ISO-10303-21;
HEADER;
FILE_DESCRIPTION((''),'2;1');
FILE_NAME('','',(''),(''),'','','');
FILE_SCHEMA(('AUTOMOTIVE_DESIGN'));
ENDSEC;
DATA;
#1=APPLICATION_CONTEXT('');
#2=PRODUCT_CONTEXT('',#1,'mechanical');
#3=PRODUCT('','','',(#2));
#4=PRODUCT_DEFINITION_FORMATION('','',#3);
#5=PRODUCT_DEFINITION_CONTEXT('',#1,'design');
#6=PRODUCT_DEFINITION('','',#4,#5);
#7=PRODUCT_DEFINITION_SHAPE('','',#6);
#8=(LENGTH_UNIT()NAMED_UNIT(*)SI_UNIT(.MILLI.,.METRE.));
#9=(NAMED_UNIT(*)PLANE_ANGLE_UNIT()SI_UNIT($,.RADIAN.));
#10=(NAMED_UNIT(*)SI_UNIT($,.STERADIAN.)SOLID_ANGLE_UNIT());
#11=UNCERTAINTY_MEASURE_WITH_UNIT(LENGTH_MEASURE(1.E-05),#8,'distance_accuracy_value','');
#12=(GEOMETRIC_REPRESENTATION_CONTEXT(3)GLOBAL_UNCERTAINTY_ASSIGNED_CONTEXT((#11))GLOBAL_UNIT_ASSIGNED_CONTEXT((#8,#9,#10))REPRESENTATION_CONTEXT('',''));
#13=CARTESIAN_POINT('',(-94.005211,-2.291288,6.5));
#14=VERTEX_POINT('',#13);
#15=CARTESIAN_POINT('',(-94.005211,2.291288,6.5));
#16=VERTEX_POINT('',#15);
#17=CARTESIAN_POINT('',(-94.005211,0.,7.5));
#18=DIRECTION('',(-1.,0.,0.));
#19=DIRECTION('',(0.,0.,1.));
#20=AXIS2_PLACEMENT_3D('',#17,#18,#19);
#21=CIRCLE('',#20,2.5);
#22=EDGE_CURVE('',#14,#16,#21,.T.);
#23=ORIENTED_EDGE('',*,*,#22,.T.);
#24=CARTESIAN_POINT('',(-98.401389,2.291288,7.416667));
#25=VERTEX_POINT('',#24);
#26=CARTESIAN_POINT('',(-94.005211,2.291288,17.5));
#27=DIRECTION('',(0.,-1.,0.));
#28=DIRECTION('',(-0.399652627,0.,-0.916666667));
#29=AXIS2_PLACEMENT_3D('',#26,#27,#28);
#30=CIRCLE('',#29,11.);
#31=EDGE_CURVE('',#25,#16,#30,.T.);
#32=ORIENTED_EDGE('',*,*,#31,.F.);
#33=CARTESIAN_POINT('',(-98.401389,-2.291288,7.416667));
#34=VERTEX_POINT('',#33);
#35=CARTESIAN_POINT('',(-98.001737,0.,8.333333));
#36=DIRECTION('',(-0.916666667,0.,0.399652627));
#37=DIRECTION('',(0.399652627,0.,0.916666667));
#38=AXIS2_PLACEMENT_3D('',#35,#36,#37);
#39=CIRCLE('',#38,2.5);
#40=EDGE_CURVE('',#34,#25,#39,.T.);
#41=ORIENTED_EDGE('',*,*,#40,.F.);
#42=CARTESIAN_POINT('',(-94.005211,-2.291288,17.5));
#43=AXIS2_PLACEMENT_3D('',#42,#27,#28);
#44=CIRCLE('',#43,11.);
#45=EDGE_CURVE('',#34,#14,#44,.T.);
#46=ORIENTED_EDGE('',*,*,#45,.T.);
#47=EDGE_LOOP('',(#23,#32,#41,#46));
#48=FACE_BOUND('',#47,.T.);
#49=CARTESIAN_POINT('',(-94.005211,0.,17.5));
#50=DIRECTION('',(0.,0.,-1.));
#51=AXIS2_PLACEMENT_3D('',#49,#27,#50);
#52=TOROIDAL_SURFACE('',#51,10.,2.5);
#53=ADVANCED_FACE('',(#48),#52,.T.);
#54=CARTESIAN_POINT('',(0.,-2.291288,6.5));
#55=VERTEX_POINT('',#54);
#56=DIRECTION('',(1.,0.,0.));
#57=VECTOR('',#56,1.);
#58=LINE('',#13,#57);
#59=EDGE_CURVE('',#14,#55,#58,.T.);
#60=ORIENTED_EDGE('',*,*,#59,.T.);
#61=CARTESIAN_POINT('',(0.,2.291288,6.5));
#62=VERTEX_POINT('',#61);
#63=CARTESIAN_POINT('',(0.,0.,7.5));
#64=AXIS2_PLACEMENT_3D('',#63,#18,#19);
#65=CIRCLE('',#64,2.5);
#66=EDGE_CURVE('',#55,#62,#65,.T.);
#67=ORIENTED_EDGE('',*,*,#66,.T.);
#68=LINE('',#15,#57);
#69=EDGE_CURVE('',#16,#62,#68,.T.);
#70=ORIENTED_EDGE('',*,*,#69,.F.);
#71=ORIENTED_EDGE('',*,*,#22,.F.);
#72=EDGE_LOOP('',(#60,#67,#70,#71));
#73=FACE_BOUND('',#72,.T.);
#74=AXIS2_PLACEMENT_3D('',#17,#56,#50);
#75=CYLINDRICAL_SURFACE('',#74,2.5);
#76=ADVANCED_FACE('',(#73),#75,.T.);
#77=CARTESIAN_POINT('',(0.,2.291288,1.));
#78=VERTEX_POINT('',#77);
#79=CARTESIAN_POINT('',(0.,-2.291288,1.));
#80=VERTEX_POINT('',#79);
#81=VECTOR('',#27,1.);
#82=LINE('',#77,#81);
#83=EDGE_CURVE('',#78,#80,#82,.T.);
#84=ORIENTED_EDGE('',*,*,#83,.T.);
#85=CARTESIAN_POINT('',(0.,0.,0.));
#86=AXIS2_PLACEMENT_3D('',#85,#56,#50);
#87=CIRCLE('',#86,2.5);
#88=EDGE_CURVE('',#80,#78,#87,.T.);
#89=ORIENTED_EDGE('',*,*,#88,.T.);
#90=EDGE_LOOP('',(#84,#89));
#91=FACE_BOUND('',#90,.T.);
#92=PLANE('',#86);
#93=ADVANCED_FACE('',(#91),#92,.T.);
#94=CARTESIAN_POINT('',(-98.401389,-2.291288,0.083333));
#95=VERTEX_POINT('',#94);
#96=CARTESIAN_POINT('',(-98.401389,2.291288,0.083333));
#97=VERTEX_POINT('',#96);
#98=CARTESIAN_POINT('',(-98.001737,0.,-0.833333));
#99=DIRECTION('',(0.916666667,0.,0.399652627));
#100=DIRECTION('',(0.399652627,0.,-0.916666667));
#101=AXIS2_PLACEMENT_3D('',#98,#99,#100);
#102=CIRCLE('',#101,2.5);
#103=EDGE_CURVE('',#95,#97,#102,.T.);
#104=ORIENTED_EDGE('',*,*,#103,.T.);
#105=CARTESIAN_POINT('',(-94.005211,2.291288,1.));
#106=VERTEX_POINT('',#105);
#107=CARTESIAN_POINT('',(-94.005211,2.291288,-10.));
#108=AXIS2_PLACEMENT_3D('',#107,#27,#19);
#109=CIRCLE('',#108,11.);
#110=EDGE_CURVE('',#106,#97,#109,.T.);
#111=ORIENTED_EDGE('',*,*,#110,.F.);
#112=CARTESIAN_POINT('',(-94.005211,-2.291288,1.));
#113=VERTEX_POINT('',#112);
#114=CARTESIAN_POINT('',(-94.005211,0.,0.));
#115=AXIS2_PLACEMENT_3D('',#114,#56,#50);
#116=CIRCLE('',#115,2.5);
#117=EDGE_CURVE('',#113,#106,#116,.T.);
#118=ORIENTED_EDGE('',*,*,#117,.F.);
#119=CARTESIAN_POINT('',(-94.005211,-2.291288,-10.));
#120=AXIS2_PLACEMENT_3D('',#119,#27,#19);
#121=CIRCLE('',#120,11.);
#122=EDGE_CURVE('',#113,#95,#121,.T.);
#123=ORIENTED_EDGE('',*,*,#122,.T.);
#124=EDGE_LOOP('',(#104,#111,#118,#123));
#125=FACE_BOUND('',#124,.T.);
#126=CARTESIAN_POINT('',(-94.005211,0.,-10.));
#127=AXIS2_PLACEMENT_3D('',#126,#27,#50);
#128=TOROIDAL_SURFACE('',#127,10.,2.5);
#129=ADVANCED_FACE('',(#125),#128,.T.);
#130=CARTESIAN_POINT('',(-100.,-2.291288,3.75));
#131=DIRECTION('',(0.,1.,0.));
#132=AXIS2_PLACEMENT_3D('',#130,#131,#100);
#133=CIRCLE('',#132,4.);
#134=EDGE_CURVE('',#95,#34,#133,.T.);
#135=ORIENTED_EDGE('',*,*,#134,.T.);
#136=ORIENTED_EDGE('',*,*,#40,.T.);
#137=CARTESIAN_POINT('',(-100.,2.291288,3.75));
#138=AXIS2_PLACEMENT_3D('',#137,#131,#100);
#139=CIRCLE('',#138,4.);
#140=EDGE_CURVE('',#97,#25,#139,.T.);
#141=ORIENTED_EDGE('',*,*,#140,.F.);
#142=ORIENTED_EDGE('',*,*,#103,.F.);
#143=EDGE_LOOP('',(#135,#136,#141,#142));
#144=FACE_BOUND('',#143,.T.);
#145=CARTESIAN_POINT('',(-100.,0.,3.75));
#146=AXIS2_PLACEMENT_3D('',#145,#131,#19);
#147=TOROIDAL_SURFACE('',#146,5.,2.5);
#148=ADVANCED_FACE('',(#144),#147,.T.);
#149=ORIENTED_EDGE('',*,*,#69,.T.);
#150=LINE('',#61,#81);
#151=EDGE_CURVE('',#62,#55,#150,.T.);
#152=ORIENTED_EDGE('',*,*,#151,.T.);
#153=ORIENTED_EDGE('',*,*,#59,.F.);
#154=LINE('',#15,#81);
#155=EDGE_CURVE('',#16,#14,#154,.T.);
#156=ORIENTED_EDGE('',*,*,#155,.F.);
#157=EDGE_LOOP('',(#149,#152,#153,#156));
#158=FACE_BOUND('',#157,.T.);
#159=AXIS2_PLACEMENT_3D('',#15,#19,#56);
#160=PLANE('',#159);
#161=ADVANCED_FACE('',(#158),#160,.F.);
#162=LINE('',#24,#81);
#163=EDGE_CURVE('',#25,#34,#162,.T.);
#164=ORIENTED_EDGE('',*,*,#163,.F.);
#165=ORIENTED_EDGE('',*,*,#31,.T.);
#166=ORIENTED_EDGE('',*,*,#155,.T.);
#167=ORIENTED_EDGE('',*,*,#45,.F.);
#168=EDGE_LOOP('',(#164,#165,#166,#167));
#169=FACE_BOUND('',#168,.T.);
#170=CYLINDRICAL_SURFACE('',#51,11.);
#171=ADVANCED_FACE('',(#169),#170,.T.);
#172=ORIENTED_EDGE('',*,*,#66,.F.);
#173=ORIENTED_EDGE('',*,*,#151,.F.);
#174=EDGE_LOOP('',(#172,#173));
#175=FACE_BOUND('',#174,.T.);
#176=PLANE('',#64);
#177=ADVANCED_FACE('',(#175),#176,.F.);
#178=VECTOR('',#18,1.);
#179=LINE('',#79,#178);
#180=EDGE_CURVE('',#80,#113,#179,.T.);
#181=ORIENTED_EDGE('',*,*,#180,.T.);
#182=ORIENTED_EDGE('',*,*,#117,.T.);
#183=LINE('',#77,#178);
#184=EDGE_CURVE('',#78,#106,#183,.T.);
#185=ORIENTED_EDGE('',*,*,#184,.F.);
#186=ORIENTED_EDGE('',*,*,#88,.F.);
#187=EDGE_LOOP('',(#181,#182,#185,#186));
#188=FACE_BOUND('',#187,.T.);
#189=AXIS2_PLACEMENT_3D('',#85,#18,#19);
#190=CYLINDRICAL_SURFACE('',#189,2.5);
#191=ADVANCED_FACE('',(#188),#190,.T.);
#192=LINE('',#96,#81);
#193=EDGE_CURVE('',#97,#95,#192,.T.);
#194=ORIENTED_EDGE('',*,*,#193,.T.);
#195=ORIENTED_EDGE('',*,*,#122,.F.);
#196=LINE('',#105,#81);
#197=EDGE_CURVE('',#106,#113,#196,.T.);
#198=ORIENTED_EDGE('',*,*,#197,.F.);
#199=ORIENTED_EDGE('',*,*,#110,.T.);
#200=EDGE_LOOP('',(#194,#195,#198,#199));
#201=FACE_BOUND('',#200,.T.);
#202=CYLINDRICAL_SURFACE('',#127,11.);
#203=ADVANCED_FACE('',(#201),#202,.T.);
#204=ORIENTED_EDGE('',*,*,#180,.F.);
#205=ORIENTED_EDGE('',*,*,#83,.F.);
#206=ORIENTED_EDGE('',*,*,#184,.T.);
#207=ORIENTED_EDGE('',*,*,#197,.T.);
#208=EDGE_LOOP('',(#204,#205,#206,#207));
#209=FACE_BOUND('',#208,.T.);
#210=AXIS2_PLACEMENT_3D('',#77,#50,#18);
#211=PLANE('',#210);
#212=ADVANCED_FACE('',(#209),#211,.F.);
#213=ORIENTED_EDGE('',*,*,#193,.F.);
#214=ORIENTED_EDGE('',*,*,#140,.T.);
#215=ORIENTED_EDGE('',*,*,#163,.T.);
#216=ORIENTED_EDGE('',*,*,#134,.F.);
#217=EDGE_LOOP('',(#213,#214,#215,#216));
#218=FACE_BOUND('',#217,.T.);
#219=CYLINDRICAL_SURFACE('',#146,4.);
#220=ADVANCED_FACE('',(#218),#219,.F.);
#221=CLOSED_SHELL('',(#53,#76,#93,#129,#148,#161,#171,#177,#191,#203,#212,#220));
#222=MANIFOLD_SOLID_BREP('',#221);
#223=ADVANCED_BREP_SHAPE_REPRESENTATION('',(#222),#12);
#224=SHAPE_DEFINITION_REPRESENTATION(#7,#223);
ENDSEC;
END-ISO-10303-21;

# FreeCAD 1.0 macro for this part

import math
import FreeCAD as App
import Part
import Sketcher

doc = App.newDocument("Part")
body = doc.addObject("PartDesign::Body", "Body")

sketch1 = body.newObject("Sketcher::SketchObject", "Sketch")
sketch1.AttachmentSupport = (doc.getObject("YZ_Plane"), [""])
sketch1.MapMode = "FlatFace"
sketch1.addGeometry([
    Part.LineSegment(App.Vector(2.291288, 1, 0), App.Vector(-2.291288, 1, 0)),
    Part.ArcOfCircle(Part.Circle(App.Vector(0, 0, 0), App.Vector(0, 0, 1), 2.5), math.radians(156.421822), math.radians(383.578178)),
], False)
sketch1.addConstraint([
    Sketcher.Constraint("Coincident", 0, 1, 1, 2),
    Sketcher.Constraint("Coincident", 1, 1, 0, 2),
    Sketcher.Constraint("Horizontal", 0),
    Sketcher.Constraint("Coincident", 1, 3, -1, 1),
    Sketcher.Constraint("Radius", 1, 2.5),
    Sketcher.Constraint("DistanceY", -1, 1, 0, 1, 1.0),
])

sketch2 = body.newObject("Sketcher::SketchObject", "Sketch001")
sketch2.AttachmentSupport = (doc.getObject("XZ_Plane"), [""])
sketch2.MapMode = "FlatFace"
sketch2.addGeometry([
    Part.LineSegment(App.Vector(0, 0, 0), App.Vector(-94.005211, 0, 0)),
    Part.ArcOfCircle(Part.Circle(App.Vector(-94.005211, -10, 0), App.Vector(0, 0, 1), 10), math.radians(90), math.radians(113.556464)),
    Part.ArcOfCircle(Part.Circle(App.Vector(-100, 3.75, 0), App.Vector(0, 0, 1), 5), math.radians(66.443536), math.radians(293.556464)),
    Part.ArcOfCircle(Part.Circle(App.Vector(-94.005211, 17.5, 0), App.Vector(0, 0, 1), 10), math.radians(-113.556464), math.radians(-90)),
    Part.LineSegment(App.Vector(-94.005211, 7.5, 0), App.Vector(0, 7.5, 0)),
], False)
sketch2.addConstraint([
    Sketcher.Constraint("Tangent", 0, 2, 1, 1),
    Sketcher.Constraint("Tangent", 1, 2, 2, 2),
    Sketcher.Constraint("Tangent", 2, 1, 3, 1),
    Sketcher.Constraint("Tangent", 3, 2, 4, 1),
    Sketcher.Constraint("Horizontal", 0),
    Sketcher.Constraint("Horizontal", 4),
    Sketcher.Constraint("Coincident", 0, 1, -1, 1),
    Sketcher.Constraint("Equal", 1, 3),
    Sketcher.Constraint("PointOnObject", 4, 2, -2),
    Sketcher.Constraint("Vertical", 1, 3, 3, 3),
    Sketcher.Constraint("Radius", 1, 10.0),
    Sketcher.Constraint("Radius", 2, 5.0),
    Sketcher.Constraint("DistanceX", 2, 3, -1, 1, 100.0),
    Sketcher.Constraint("DistanceY", -1, 1, 3, 3, 17.5),
])
doc.recompute()

additivepipe = body.newObject("PartDesign::AdditivePipe", "AdditivePipe")
additivepipe.Profile = sketch1
additivepipe.Spine = (sketch2, ["Edge1", "Edge2", "Edge3", "Edge4", "Edge5"])

doc.recompute()
